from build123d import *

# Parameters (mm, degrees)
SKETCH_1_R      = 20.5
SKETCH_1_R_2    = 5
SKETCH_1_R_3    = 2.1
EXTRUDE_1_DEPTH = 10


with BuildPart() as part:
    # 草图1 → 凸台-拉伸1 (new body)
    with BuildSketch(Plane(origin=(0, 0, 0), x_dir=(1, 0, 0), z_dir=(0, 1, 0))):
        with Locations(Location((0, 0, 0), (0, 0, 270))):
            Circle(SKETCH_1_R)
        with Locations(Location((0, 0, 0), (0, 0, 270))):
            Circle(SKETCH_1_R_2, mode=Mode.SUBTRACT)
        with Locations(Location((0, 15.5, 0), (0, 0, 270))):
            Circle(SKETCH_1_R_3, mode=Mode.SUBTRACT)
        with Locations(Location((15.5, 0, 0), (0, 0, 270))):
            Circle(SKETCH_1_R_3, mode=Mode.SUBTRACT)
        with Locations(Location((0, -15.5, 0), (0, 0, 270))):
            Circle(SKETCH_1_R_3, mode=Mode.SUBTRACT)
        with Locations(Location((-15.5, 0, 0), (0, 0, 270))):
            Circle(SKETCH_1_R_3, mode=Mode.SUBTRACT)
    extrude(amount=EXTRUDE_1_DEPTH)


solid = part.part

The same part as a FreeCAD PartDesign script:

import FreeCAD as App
import Part
import Sketcher

doc = App.newDocument("Part")
body = doc.addObject("PartDesign::Body", "Body")

sketch1 = body.newObject("Sketcher::SketchObject", "Sketch")
sketch1.AttachmentSupport = (doc.getObject("XZ_Plane"), [""])
sketch1.MapMode = "FlatFace"
sketch1.addGeometry(Part.Circle(App.Vector(0, 0, 0), App.Vector(0, 0, 1), 20.5), False)
sketch1.addGeometry(Part.Circle(App.Vector(0, -15.5, 0), App.Vector(0, 0, 1), 2.1), False)
sketch1.addGeometry(Part.Circle(App.Vector(-15.5, 0, 0), App.Vector(0, 0, 1), 2.1), False)
sketch1.addGeometry(Part.Circle(App.Vector(15.5, 0, 0), App.Vector(0, 0, 1), 2.1), False)
sketch1.addGeometry(Part.Circle(App.Vector(0, 0, 0), App.Vector(0, 0, 1), 5), False)
sketch1.addGeometry(Part.Circle(App.Vector(0, 15.5, 0), App.Vector(0, 0, 1), 2.1), False)
sketch1.addConstraint(Sketcher.Constraint("Coincident", 0, 3, -1, 1))
sketch1.addConstraint(Sketcher.Constraint("Coincident", 4, 3, -1, 1))
sketch1.addConstraint(Sketcher.Constraint("Equal", 1, 2))
sketch1.addConstraint(Sketcher.Constraint("Equal", 2, 3))
sketch1.addConstraint(Sketcher.Constraint("Equal", 3, 5))
sketch1.addConstraint(Sketcher.Constraint("Symmetric", 2, 3, 3, 3, -1, 1))
sketch1.addConstraint(Sketcher.Constraint("Symmetric", 1, 3, 5, 3, -1, 1))
sketch1.addConstraint(Sketcher.Constraint("PointOnObject", 1, 3, -2))
sketch1.addConstraint(Sketcher.Constraint("PointOnObject", 2, 3, -1))
sketch1.addConstraint(Sketcher.Constraint("Diameter", 0, 41.0))
sketch1.addConstraint(Sketcher.Constraint("Diameter", 4, 10.0))
sketch1.addConstraint(Sketcher.Constraint("Diameter", 1, 4.2))
sketch1.addConstraint(Sketcher.Constraint("DistanceX", 2, 3, 3, 3, 31.0))
sketch1.addConstraint(Sketcher.Constraint("DistanceY", 1, 3, 5, 3, 31.0))
pad1 = body.newObject("PartDesign::Pad", "Pad")
pad1.Profile = sketch1
pad1.Length = 10
pad1.Reversed = True

doc.recompute()
